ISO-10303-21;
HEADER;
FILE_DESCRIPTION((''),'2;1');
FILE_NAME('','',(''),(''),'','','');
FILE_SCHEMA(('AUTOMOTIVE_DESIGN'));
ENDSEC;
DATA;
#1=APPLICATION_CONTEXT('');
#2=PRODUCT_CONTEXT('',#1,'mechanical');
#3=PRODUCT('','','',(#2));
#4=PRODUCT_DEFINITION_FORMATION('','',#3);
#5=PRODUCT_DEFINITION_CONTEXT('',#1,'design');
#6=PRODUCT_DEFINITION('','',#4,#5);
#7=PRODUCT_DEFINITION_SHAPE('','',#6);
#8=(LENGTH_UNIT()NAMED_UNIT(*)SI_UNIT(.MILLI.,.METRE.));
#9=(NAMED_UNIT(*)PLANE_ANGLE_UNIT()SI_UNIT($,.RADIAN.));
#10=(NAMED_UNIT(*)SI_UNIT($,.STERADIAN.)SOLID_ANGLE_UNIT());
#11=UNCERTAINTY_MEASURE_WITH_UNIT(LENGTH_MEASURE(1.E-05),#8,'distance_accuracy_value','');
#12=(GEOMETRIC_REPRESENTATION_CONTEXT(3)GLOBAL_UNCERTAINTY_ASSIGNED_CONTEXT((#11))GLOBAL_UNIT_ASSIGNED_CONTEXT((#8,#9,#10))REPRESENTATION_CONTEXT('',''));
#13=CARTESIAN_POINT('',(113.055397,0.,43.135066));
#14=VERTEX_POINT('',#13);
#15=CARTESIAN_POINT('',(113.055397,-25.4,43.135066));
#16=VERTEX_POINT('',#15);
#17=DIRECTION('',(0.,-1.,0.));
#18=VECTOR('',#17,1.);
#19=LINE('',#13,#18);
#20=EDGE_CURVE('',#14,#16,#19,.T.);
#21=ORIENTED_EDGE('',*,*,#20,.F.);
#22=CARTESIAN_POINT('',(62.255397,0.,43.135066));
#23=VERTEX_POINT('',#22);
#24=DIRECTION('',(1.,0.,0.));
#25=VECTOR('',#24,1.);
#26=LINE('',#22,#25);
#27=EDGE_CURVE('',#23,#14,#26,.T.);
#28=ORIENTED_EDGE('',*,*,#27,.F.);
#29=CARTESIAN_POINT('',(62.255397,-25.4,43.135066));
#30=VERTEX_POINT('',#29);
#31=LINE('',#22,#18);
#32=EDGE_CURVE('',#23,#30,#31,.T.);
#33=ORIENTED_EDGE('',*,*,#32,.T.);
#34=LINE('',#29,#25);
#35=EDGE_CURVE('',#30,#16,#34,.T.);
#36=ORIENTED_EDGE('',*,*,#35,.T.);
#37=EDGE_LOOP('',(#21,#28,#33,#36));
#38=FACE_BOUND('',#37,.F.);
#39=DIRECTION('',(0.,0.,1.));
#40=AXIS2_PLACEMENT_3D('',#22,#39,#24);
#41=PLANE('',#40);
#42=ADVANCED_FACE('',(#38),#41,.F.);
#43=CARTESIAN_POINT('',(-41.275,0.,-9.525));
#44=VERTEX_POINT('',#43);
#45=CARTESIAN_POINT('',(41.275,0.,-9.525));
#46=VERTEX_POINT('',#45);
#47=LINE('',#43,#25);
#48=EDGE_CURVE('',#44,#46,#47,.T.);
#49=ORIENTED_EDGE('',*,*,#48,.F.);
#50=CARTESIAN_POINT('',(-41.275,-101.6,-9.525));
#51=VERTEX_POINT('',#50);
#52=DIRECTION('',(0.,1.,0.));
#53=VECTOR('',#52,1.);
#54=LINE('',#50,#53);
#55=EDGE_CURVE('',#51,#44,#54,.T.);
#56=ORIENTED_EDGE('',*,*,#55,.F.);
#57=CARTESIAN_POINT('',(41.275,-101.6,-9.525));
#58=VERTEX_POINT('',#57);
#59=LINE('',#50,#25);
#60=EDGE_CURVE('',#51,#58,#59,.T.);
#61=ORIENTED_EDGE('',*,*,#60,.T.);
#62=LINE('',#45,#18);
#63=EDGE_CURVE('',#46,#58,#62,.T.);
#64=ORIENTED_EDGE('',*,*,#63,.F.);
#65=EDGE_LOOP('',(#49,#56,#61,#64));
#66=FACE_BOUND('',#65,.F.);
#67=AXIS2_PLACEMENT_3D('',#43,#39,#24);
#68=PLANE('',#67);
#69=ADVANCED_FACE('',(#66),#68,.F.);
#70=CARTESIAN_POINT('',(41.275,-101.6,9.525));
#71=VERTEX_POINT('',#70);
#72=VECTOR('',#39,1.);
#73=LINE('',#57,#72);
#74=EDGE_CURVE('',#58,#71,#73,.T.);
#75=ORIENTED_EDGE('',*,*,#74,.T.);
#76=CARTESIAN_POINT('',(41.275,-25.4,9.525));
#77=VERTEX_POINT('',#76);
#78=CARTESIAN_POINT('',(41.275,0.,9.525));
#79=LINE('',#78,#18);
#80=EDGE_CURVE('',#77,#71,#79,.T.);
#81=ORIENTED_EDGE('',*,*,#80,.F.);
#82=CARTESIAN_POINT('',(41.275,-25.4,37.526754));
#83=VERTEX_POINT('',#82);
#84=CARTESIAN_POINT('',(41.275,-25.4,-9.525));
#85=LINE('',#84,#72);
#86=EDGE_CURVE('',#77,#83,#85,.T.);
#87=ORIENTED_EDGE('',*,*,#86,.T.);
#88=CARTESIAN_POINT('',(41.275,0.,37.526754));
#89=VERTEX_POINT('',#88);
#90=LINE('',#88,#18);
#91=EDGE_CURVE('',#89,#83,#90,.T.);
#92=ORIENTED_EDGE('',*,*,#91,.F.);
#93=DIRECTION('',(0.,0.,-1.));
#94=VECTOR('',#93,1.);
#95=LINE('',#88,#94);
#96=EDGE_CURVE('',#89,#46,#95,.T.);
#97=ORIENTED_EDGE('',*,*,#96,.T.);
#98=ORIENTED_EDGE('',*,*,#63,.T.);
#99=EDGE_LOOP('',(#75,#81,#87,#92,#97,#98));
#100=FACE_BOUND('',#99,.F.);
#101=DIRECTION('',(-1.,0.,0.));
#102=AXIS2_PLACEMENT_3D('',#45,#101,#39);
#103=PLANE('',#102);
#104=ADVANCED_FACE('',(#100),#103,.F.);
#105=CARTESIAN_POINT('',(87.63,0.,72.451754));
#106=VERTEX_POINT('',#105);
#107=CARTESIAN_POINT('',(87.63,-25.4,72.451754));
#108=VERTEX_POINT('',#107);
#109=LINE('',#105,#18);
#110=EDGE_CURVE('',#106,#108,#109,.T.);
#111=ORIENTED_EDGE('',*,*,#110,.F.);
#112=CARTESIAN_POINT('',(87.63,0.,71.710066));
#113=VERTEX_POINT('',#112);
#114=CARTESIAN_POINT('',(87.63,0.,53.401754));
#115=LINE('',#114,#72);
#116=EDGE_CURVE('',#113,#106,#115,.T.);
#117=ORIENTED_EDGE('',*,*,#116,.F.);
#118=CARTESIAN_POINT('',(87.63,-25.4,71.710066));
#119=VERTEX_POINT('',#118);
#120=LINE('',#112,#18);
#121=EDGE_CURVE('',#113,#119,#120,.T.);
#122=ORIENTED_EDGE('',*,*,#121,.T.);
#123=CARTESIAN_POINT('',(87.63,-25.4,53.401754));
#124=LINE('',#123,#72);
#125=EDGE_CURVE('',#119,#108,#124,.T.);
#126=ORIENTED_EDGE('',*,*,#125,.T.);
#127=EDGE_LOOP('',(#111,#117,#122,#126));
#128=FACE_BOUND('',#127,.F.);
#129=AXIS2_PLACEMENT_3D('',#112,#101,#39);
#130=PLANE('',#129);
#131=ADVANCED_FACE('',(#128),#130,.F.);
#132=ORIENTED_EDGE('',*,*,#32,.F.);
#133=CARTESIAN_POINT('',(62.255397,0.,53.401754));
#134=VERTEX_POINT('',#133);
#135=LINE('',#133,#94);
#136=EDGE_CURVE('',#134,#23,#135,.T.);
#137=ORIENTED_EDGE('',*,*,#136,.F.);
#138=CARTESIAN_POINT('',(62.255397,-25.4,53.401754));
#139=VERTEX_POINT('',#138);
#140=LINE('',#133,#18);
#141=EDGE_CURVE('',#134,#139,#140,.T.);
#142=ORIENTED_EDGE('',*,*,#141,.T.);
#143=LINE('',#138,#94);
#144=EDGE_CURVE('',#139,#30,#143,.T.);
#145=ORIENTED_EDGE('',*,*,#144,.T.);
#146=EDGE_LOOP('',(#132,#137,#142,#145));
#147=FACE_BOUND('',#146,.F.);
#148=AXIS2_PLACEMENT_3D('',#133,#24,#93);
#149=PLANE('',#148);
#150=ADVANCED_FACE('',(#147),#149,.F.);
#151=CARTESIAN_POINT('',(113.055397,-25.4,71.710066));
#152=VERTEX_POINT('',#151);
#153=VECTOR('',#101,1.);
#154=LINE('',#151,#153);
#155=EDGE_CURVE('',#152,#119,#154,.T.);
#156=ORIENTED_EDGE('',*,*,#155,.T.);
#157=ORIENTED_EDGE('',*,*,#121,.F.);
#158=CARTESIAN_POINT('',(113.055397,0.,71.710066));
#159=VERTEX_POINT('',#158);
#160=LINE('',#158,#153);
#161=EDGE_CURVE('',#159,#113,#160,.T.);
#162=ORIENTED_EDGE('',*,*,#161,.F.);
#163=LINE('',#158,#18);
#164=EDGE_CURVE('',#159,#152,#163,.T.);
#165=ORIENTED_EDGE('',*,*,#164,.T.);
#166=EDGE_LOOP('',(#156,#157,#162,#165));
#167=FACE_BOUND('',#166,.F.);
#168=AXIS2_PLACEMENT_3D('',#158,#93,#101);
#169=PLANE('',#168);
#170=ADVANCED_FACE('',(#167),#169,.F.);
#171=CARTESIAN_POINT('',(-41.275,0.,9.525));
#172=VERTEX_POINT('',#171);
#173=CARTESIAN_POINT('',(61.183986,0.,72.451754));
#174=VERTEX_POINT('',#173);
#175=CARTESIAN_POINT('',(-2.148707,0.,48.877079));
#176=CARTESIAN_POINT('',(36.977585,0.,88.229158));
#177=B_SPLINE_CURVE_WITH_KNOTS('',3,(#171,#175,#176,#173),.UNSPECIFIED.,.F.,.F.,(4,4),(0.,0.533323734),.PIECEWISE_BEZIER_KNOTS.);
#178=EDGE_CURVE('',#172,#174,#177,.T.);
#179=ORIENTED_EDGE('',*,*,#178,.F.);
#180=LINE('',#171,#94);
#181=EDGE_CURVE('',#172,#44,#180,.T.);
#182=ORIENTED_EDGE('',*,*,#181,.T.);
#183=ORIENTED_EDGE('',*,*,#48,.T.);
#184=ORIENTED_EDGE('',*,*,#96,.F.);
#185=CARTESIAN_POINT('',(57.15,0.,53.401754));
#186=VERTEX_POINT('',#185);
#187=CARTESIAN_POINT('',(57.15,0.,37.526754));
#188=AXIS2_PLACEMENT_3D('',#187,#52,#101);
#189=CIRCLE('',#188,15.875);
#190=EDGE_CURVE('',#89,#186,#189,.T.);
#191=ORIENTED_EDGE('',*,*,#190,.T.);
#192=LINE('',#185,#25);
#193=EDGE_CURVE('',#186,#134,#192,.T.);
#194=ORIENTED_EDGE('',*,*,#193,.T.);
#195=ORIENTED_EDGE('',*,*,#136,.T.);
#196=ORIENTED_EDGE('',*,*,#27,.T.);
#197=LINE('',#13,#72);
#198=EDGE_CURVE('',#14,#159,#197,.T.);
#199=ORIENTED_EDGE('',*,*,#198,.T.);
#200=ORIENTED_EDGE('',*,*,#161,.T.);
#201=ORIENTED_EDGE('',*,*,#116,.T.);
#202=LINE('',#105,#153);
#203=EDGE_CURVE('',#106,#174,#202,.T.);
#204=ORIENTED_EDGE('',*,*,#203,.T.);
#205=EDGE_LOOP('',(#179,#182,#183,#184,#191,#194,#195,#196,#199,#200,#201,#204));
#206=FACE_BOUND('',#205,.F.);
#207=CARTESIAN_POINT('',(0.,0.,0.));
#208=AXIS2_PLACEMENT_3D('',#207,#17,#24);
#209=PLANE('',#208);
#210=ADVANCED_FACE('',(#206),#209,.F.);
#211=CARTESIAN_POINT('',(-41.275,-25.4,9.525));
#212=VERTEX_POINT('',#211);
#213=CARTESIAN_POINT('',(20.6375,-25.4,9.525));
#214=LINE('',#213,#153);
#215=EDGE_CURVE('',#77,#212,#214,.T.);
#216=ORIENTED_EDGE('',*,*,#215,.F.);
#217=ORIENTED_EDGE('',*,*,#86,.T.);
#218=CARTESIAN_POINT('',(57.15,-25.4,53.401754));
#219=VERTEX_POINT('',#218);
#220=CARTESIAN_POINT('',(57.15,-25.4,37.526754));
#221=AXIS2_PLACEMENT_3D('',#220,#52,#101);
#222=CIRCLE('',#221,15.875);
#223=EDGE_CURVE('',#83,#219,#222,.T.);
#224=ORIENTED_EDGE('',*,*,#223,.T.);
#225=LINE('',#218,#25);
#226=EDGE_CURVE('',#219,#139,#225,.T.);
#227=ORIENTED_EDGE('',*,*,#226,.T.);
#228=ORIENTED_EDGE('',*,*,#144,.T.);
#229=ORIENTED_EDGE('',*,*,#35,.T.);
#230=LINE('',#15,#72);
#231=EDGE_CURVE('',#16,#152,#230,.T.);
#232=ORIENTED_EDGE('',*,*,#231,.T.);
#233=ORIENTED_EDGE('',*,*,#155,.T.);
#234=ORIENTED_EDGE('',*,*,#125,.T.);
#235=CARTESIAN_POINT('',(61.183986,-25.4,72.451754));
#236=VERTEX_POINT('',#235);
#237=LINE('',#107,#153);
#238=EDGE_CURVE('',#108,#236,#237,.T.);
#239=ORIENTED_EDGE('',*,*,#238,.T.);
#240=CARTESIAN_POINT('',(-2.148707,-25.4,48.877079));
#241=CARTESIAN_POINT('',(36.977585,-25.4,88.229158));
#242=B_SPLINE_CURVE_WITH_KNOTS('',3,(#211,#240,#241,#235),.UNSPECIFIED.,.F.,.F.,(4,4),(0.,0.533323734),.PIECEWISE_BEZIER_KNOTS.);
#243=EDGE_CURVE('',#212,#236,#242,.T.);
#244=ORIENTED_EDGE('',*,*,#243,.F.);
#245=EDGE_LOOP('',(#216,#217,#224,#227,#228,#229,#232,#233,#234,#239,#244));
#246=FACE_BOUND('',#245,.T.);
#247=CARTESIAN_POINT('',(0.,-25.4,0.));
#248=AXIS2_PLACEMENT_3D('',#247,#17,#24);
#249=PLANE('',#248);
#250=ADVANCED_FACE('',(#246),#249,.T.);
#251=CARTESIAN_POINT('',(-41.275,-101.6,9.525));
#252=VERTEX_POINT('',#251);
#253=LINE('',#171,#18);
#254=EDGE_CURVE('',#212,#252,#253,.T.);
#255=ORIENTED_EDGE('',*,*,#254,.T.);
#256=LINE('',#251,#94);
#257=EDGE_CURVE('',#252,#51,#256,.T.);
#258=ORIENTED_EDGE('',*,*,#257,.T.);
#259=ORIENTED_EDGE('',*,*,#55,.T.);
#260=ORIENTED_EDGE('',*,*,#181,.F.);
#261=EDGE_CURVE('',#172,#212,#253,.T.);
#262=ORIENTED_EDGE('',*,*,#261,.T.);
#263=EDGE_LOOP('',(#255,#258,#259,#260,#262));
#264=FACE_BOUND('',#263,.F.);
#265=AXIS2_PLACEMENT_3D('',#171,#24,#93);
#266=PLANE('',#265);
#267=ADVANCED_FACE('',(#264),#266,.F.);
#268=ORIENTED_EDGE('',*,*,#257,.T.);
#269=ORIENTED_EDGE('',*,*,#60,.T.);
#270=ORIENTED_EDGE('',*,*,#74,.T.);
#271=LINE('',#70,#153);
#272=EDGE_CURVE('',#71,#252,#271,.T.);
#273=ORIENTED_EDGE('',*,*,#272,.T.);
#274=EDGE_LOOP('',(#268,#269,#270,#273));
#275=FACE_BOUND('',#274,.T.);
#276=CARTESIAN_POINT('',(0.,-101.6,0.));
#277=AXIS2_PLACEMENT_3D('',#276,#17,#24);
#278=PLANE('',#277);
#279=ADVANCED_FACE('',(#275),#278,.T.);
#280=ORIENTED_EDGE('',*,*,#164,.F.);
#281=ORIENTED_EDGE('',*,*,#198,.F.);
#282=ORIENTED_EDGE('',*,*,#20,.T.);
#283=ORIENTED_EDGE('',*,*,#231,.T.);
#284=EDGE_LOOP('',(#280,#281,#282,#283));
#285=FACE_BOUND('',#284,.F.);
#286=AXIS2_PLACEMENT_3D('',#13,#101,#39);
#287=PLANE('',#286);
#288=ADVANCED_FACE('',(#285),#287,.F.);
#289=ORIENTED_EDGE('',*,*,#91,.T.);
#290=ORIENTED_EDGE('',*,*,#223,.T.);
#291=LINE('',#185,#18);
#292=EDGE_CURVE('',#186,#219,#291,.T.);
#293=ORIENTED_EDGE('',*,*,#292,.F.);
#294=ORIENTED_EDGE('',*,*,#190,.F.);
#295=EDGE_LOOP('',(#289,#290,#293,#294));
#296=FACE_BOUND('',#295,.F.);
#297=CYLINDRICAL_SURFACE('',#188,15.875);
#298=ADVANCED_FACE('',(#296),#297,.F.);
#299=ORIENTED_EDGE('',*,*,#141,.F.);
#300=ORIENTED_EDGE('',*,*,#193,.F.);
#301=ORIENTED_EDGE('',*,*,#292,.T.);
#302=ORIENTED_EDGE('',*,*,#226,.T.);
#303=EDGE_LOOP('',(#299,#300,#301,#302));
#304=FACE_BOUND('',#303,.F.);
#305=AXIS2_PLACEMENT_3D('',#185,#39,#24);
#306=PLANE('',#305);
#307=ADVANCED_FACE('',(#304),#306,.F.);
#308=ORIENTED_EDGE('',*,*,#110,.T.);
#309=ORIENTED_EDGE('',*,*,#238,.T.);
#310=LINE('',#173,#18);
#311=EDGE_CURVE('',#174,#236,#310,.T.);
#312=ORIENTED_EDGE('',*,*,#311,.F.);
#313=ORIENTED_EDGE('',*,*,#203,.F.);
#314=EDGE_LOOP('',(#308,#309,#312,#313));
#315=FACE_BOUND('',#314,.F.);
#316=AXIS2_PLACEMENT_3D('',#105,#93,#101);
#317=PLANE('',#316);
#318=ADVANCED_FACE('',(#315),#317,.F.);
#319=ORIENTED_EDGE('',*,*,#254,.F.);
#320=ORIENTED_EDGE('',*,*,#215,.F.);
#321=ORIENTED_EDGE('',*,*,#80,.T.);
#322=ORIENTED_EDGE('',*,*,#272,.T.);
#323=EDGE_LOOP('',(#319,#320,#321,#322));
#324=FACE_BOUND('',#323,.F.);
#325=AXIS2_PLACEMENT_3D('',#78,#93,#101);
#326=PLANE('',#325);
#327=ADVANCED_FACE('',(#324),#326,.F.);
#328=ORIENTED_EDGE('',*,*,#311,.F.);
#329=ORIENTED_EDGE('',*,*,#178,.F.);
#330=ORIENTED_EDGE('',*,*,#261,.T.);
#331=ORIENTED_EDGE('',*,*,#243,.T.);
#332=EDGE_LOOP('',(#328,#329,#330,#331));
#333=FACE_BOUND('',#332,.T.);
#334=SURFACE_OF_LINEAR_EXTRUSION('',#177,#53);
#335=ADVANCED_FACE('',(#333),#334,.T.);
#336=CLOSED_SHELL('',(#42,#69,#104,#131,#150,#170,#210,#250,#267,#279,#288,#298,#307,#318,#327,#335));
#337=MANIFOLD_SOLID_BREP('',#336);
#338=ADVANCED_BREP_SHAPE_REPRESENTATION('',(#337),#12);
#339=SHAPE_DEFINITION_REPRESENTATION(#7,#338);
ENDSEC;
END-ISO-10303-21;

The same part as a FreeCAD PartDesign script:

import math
import FreeCAD as App
import Part
import Sketcher
Q = App.Units.Quantity

doc = App.newDocument("Part")
params = doc.addObject("Spreadsheet::Sheet", "Params")
for row, (alias, value) in enumerate([
    ("sketch1_width", "3.25 in"),
    ("sketch1_height", "0.75 in"),
    ("pad1_length", "4 in"),
    ("sketch2_width", "2 in"),
    ("sketch2_radius", "0.625 in"),
    ("sketch2_width2", "3.25 in"),
    ("sketch2_height", "0.75 in"),
    ("sketch2_width3", "0.2009999 in"),
    ("pad2_length", "1 in"),
], start=1):
    params.set(f"A{row}", alias)
    params.set(f"B{row}", "=" + value)
    params.setAlias(f"B{row}", alias)

body = doc.addObject("PartDesign::Body", "Body")

# Sketch on XZ plane
sketch1 = body.newObject("Sketcher::SketchObject", "Sketch")
sketch1.AttachmentSupport = (doc.getObject("XZ_Plane"), [""])
sketch1.MapMode = "FlatFace"
sketch1.addGeometry([
    Part.LineSegment(App.Vector(-41.275, -9.525, 0), App.Vector(41.275, -9.525, 0)),
    Part.LineSegment(App.Vector(41.275, -9.525, 0), App.Vector(41.275, 9.525, 0)),
    Part.LineSegment(App.Vector(41.275, 9.525, 0), App.Vector(-41.275, 9.525, 0)),
    Part.LineSegment(App.Vector(-41.275, 9.525, 0), App.Vector(-41.275, -9.525, 0)),
], False)
sketch1.addConstraint([
    Sketcher.Constraint("Coincident", 0, 2, 1, 1),
    Sketcher.Constraint("Coincident", 1, 2, 2, 1),
    Sketcher.Constraint("Coincident", 2, 2, 3, 1),
    Sketcher.Constraint("Coincident", 3, 2, 0, 1),
    Sketcher.Constraint("Horizontal", 0),
    Sketcher.Constraint("Vertical", 1),
    Sketcher.Constraint("Horizontal", 2),
    Sketcher.Constraint("Vertical", 3),
    Sketcher.Constraint("Symmetric", 0, 2, 2, 2, -1, 1),
    Sketcher.Constraint("DistanceX", 0, 1, 0, 2, Q("3.25 in")),
    Sketcher.Constraint("DistanceY", 1, 1, 1, 2, Q("0.75 in")),
])
sketch1.setExpression("Constraints[9]", "Params.sketch1_width")
sketch1.setExpression("Constraints[10]", "Params.sketch1_height")
pad1 = body.newObject("PartDesign::Pad", "Pad")
pad1.Profile = sketch1
pad1.setExpression("Length", "Params.pad1_length")

# Sketch on XZ plane
sketch2 = body.newObject("Sketcher::SketchObject", "Sketch001")
sketch2.AttachmentSupport = (doc.getObject("XZ_Plane"), [""])
sketch2.MapMode = "FlatFace"
sketch2.addGeometry([
    Part.LineSegment(App.Vector(-41.275, -9.525, 0), App.Vector(41.275, -9.525, 0)),  # 0
    Part.LineSegment(App.Vector(41.275, -9.525, 0), App.Vector(41.275, 37.526754, 0)),  # 1
    Part.ArcOfCircle(Part.Circle(App.Vector(57.15, 37.526754, 0), App.Vector(0, 0, 1), 15.875), math.radians(90), math.radians(180)),  # 2
    Part.LineSegment(App.Vector(57.15, 53.401754, 0), App.Vector(62.255397, 53.401754, 0)),  # 3
    Part.LineSegment(App.Vector(62.255397, 53.401754, 0), App.Vector(62.255397, 43.135066, 0)),  # 4
    Part.LineSegment(App.Vector(62.255397, 43.135066, 0), App.Vector(113.055397, 43.135066, 0)),  # 5
    Part.LineSegment(App.Vector(113.055397, 43.135066, 0), App.Vector(113.055397, 71.710066, 0)),  # 6
    Part.LineSegment(App.Vector(113.055397, 71.710066, 0), App.Vector(87.63, 71.710066, 0)),  # 7
    Part.LineSegment(App.Vector(87.63, 71.710066, 0), App.Vector(87.63, 72.451754, 0)),  # 8
    Part.LineSegment(App.Vector(87.63, 72.451754, 0), App.Vector(61.183986, 72.451754, 0)),  # 9
    Part.BSplineCurve([App.Vector(-41.275, 9.525, 0), App.Vector(-2.148707, 48.877079, 0), App.Vector(36.977585, 88.229158, 0), App.Vector(61.183986, 72.451754, 0)], [4, 4], [0, 0.533323734], False, 3, [1, 1, 1, 1], False),  # 10
    Part.LineSegment(App.Vector(-41.275, 9.525, 0), App.Vector(-41.275, -9.525, 0)),  # 11
], False)
sketch2.addConstraint([
    Sketcher.Constraint("Block", 10),
    Sketcher.Constraint("Coincident", 0, 2, 1, 1),
    Sketcher.Constraint("Tangent", 1, 2, 2, 2),
    Sketcher.Constraint("Tangent", 2, 1, 3, 1),
    Sketcher.Constraint("Coincident", 3, 2, 4, 1),
    Sketcher.Constraint("Coincident", 4, 2, 5, 1),
    Sketcher.Constraint("Coincident", 5, 2, 6, 1),
    Sketcher.Constraint("Coincident", 6, 2, 7, 1),
    Sketcher.Constraint("Coincident", 7, 2, 8, 1),
    Sketcher.Constraint("Coincident", 8, 2, 9, 1),
    Sketcher.Constraint("Coincident", 9, 2, 10, 2),
    Sketcher.Constraint("Coincident", 10, 1, 11, 1),
    Sketcher.Constraint("Coincident", 11, 2, 0, 1),
    Sketcher.Constraint("Horizontal", 0),
    Sketcher.Constraint("Vertical", 1),
    Sketcher.Constraint("Horizontal", 3),
    Sketcher.Constraint("Vertical", 4),
    Sketcher.Constraint("Horizontal", 5),
    Sketcher.Constraint("Vertical", 6),
    Sketcher.Constraint("Horizontal", 7),
    Sketcher.Constraint("Vertical", 8),
    Sketcher.Constraint("Horizontal", 9),
    Sketcher.Constraint("Vertical", 11),
    Sketcher.Constraint("DistanceX", 5, 1, 5, 2, Q("2 in")),
    Sketcher.Constraint("Radius", 2, Q("0.625 in")),
    Sketcher.Constraint("DistanceX", 0, 1, 0, 2, Q("3.25 in")),
    Sketcher.Constraint("DistanceY", 11, 2, 11, 1, Q("0.75 in")),
    Sketcher.Constraint("DistanceX", 2, 1, 7, 2, Q("1.2 in")),
    Sketcher.Constraint("DistanceX", 3, 1, 3, 2, Q("0.2009999 in")),
    Sketcher.Constraint("DistanceY", 6, 1, 6, 2, Q("1.125 in")),
    Sketcher.Constraint("DistanceY", 3, 2, 8, 2, Q("0.75 in")),
    Sketcher.Constraint("DistanceY", 4, 2, 4, 1, 10.266688),
])
sketch2.setExpression("Constraints[23]", "Params.sketch2_width")
sketch2.setExpression("Constraints[24]", "Params.sketch2_radius")
sketch2.setExpression("Constraints[25]", "Params.sketch2_width2")
sketch2.setExpression("Constraints[26]", "Params.sketch2_height")
sketch2.setExpression("Constraints[28]", "Params.sketch2_width3")
pad2 = body.newObject("PartDesign::Pad", "Pad001")
pad2.Profile = sketch2
pad2.setExpression("Length", "Params.pad2_length")

doc.recompute()
